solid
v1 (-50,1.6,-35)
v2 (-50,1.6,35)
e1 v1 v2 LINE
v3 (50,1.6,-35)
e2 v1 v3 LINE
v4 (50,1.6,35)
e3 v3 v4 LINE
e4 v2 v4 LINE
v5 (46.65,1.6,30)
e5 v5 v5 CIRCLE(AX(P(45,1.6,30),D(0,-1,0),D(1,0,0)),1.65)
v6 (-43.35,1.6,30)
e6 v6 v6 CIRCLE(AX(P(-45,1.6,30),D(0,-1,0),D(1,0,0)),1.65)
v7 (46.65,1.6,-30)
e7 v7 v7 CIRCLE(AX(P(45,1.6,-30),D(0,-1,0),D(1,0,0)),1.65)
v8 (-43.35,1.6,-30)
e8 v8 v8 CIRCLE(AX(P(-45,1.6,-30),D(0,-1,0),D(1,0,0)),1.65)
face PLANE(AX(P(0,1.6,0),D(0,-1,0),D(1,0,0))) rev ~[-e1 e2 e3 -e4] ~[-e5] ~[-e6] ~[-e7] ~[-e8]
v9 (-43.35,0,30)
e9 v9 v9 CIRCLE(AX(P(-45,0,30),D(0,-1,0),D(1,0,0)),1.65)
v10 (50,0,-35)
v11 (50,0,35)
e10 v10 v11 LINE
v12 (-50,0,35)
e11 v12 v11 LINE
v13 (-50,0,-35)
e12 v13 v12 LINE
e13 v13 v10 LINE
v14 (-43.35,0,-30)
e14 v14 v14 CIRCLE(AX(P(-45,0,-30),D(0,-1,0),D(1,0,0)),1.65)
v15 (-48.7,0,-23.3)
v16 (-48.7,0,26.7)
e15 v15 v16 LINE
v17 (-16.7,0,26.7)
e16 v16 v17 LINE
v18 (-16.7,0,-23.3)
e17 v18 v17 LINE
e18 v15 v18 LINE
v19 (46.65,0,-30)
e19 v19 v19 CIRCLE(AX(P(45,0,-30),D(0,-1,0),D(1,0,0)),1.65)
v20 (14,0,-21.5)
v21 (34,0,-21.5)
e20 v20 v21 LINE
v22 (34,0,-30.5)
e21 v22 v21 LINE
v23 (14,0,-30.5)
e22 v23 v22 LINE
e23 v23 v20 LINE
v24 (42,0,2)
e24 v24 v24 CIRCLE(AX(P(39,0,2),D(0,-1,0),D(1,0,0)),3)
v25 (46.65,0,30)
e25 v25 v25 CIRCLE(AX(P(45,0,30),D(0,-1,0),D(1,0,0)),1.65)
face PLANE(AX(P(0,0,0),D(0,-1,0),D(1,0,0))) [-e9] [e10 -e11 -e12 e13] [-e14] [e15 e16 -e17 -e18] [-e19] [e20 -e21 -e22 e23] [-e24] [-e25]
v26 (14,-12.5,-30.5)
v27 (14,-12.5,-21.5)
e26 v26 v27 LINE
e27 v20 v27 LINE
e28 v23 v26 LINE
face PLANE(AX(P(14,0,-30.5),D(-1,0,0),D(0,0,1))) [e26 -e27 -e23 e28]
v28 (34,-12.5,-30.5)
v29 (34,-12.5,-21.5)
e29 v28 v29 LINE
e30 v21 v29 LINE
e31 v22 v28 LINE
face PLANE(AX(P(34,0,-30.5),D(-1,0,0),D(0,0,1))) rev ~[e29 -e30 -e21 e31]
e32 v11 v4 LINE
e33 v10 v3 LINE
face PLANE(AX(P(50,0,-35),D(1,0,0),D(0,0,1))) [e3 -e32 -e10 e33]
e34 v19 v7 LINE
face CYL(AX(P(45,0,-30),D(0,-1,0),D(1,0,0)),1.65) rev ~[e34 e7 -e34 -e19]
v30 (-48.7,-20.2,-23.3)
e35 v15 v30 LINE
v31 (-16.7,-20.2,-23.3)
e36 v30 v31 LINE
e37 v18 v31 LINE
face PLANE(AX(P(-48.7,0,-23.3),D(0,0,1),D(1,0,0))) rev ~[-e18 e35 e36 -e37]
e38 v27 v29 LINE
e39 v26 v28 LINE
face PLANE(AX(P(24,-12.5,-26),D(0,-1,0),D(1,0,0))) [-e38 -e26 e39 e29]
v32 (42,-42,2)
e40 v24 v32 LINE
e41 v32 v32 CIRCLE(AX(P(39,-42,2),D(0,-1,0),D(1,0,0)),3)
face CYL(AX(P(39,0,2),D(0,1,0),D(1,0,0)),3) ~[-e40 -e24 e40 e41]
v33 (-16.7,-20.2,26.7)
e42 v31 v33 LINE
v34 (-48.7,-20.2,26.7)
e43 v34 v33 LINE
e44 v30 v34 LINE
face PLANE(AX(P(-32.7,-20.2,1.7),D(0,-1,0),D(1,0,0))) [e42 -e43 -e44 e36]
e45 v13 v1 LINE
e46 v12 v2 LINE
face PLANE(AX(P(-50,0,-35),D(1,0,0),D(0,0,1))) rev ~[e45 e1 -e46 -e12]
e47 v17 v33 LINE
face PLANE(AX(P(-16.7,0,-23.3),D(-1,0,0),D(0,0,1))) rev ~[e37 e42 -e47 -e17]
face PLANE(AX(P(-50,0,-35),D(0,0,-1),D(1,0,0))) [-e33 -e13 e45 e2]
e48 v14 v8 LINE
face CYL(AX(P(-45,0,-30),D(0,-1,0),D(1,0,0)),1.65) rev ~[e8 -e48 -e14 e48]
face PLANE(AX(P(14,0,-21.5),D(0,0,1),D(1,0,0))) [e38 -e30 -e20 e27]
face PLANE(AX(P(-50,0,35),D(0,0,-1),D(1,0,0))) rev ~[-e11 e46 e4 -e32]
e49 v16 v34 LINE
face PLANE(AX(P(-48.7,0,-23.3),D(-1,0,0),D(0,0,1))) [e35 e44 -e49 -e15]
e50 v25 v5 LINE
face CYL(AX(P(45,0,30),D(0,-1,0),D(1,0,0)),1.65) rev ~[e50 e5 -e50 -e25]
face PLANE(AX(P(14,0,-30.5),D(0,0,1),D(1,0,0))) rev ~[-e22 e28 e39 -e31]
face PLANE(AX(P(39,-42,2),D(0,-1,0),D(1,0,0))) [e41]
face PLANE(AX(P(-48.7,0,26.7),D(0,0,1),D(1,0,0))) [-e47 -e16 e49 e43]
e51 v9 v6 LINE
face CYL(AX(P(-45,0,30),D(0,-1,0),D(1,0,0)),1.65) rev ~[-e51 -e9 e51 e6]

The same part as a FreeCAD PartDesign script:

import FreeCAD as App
import Part
import Sketcher

V = App.Vector
Q = App.Units.Quantity

doc = App.newDocument("Part")
body = doc.addObject("PartDesign::Body", "Body")

# Sketch on XZ plane
sketch1 = body.newObject("Sketcher::SketchObject", "Sketch")
sketch1.AttachmentSupport = (doc.getObject("XZ_Plane"), [""])
sketch1.MapMode = "FlatFace"
sketch1.addGeometry(Part.LineSegment(V(-50, 35, 0), V(-50, -35, 0)), False)
sketch1.addGeometry(Part.LineSegment(V(-50, -35, 0), V(50, -35, 0)), False)
sketch1.addGeometry(Part.LineSegment(V(50, -35, 0), V(50, 35, 0)), False)
sketch1.addGeometry(Part.LineSegment(V(50, 35, 0), V(-50, 35, 0)), False)
sketch1.addGeometry(Part.Circle(V(-45, -30, 0), V(0, 0, 1), 1.6), False)
sketch1.addGeometry(Part.Circle(V(45, -30, 0), V(0, 0, 1), 1.6), False)
sketch1.addGeometry(Part.Circle(V(-45, 30, 0), V(0, 0, 1), 1.6), False)
sketch1.addGeometry(Part.Circle(V(45, 30, 0), V(0, 0, 1), 1.6), False)
sketch1.addConstraint(Sketcher.Constraint("Coincident", 0, 2, 1, 1))
sketch1.addConstraint(Sketcher.Constraint("Coincident", 1, 2, 2, 1))
sketch1.addConstraint(Sketcher.Constraint("Coincident", 2, 2, 3, 1))
sketch1.addConstraint(Sketcher.Constraint("Coincident", 3, 2, 0, 1))
sketch1.addConstraint(Sketcher.Constraint("Vertical", 0))
sketch1.addConstraint(Sketcher.Constraint("Horizontal", 1))
sketch1.addConstraint(Sketcher.Constraint("Vertical", 2))
sketch1.addConstraint(Sketcher.Constraint("Horizontal", 3))
sketch1.addConstraint(Sketcher.Constraint("Equal", 4, 5))
sketch1.addConstraint(Sketcher.Constraint("Equal", 5, 6))
sketch1.addConstraint(Sketcher.Constraint("Equal", 6, 7))
sketch1.addConstraint(Sketcher.Constraint("Symmetric", 5, 3, 6, 3, -1, 1))
sketch1.addConstraint(Sketcher.Constraint("Symmetric", 4, 3, 7, 3, -1, 1))
sketch1.addConstraint(Sketcher.Constraint("Symmetric", 0, 2, 2, 2, -1, 1))
sketch1.addConstraint(Sketcher.Constraint("Symmetric", 4, 3, 5, 3, -2))
sketch1.addConstraint(Sketcher.Constraint("Diameter", 4, Q("3.3 mm")))
sketch1.addConstraint(Sketcher.Constraint("DistanceX", 1, 1, 1, 2, Q("100 mm")))
sketch1.addConstraint(Sketcher.Constraint("DistanceY", 0, 2, 0, 1, Q("70 mm")))
sketch1.addConstraint(Sketcher.Constraint("DistanceX", 4, 3, -1, 1, Q("45 mm")))
sketch1.addConstraint(Sketcher.Constraint("DistanceY", 4, 3, -1, 1, Q("30 mm")))
pad1 = body.newObject("PartDesign::Pad", "Pad")
pad1.Profile = sketch1
pad1.Length = 1.6
pad1.Reversed = True

# Sketch on XZ plane
sketch2 = body.newObject("Sketcher::SketchObject", "Sketch001")
sketch2.AttachmentSupport = (doc.getObject("XZ_Plane"), [""])
sketch2.MapMode = "FlatFace"
sketch2.addGeometry(Part.LineSegment(V(-49, 27, 0), V(-49, -23, 0)), False)
sketch2.addGeometry(Part.LineSegment(V(-49, -23, 0), V(-17, -23, 0)), False)
sketch2.addGeometry(Part.LineSegment(V(-17, -23, 0), V(-17, 27, 0)), False)
sketch2.addGeometry(Part.LineSegment(V(-17, 27, 0), V(-49, 27, 0)), False)
sketch2.addConstraint(Sketcher.Constraint("Coincident", 0, 2, 1, 1))
sketch2.addConstraint(Sketcher.Constraint("Coincident", 1, 2, 2, 1))
sketch2.addConstraint(Sketcher.Constraint("Coincident", 2, 2, 3, 1))
sketch2.addConstraint(Sketcher.Constraint("Coincident", 3, 2, 0, 1))
sketch2.addConstraint(Sketcher.Constraint("Vertical", 0))
sketch2.addConstraint(Sketcher.Constraint("Horizontal", 1))
sketch2.addConstraint(Sketcher.Constraint("Vertical", 2))
sketch2.addConstraint(Sketcher.Constraint("Horizontal", 3))
sketch2.addConstraint(Sketcher.Constraint("DistanceX", 1, 1, 1, 2, Q("32 mm")))
sketch2.addConstraint(Sketcher.Constraint("DistanceY", 0, 2, 0, 1, Q("50 mm")))
sketch2.addConstraint(Sketcher.Constraint("DistanceX", 0, 2, -1, 1, Q("48.7 mm")))
sketch2.addConstraint(Sketcher.Constraint("DistanceY", 0, 2, -1, 1, Q("23.3 mm")))
pad2 = body.newObject("PartDesign::Pad", "Pad001")
pad2.Profile = sketch2
pad2.Length = 20.2

# Sketch on XZ plane
sketch3 = body.newObject("Sketcher::SketchObject", "Sketch002")
sketch3.AttachmentSupport = (doc.getObject("XZ_Plane"), [""])
sketch3.MapMode = "FlatFace"
sketch3.addGeometry(Part.LineSegment(V(14, -22, 0), V(14, -30, 0)), False)
sketch3.addGeometry(Part.LineSegment(V(14, -30, 0), V(34, -30, 0)), False)
sketch3.addGeometry(Part.LineSegment(V(34, -30, 0), V(34, -22, 0)), False)
sketch3.addGeometry(Part.LineSegment(V(34, -22, 0), V(14, -22, 0)), False)
sketch3.addConstraint(Sketcher.Constraint("Coincident", 0, 2, 1, 1))
sketch3.addConstraint(Sketcher.Constraint("Coincident", 1, 2, 2, 1))
sketch3.addConstraint(Sketcher.Constraint("Coincident", 2, 2, 3, 1))
sketch3.addConstraint(Sketcher.Constraint("Coincident", 3, 2, 0, 1))
sketch3.addConstraint(Sketcher.Constraint("Vertical", 0))
sketch3.addConstraint(Sketcher.Constraint("Horizontal", 1))
sketch3.addConstraint(Sketcher.Constraint("Vertical", 2))
sketch3.addConstraint(Sketcher.Constraint("Horizontal", 3))
sketch3.addConstraint(Sketcher.Constraint("DistanceX", 1, 1, 1, 2, Q("20 mm")))
sketch3.addConstraint(Sketcher.Constraint("DistanceY", 0, 2, 0, 1, Q("9 mm")))
sketch3.addConstraint(Sketcher.Constraint("DistanceX", -1, 1, 0, 2, Q("14 mm")))
sketch3.addConstraint(Sketcher.Constraint("DistanceY", 0, 2, -1, 1, Q("30.5 mm")))
pad3 = body.newObject("PartDesign::Pad", "Pad002")
pad3.Profile = sketch3
pad3.Length = 12.5

# Sketch on XZ plane
sketch4 = body.newObject("Sketcher::SketchObject", "Sketch003")
sketch4.AttachmentSupport = (doc.getObject("XZ_Plane"), [""])
sketch4.MapMode = "FlatFace"
sketch4.addGeometry(Part.Circle(V(39, 2, 0), V(0, 0, 1), 3), False)
sketch4.addConstraint(Sketcher.Constraint("Diameter", 0, Q("6 mm")))
sketch4.addConstraint(Sketcher.Constraint("DistanceX", -1, 1, 0, 3, Q("39 mm")))
sketch4.addConstraint(Sketcher.Constraint("DistanceY", -1, 1, 0, 3, Q("2 mm")))
pad4 = body.newObject("PartDesign::Pad", "Pad003")
pad4.Profile = sketch4
pad4.Length = 42

doc.recompute()
